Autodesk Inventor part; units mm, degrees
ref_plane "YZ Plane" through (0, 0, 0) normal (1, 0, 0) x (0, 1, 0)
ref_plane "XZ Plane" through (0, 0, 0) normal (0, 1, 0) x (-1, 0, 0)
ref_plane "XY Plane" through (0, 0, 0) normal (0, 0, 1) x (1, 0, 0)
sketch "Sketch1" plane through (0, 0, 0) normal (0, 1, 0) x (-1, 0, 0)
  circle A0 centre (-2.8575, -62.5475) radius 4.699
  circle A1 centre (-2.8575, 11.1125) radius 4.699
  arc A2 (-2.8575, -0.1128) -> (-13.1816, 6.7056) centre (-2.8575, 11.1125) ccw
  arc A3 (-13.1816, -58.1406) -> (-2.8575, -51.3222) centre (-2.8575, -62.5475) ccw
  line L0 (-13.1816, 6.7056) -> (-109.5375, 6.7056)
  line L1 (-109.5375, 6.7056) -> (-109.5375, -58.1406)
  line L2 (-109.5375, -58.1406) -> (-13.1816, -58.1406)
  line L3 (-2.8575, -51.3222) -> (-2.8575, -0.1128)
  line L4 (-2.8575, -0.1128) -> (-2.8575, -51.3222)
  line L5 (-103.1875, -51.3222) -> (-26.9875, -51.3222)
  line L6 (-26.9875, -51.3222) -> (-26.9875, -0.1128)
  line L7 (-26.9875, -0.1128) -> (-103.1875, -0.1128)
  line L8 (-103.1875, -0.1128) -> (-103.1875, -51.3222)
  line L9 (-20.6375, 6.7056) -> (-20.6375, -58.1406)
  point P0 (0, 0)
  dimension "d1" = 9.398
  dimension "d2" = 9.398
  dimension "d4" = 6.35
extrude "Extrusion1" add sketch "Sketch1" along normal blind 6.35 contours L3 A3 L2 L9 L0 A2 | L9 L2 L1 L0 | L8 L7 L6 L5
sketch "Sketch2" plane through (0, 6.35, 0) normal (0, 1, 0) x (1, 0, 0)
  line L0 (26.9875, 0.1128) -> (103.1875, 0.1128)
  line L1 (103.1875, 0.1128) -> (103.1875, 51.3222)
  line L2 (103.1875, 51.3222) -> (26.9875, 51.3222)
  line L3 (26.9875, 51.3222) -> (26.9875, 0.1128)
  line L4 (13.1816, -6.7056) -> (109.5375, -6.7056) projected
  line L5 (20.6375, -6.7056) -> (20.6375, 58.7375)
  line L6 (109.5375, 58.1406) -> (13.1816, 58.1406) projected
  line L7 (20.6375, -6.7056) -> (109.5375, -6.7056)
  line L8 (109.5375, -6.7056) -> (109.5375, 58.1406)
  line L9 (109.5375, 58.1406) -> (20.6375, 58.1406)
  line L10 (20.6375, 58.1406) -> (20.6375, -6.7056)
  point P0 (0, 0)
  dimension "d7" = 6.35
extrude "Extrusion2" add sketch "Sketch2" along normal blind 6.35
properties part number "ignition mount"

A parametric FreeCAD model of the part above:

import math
import FreeCAD as App
import Part
import Sketcher
Q = App.Units.Quantity

doc = App.newDocument("Part")
body = doc.addObject("PartDesign::Body", "Body")

# Sketch on XZ plane
sketch1 = body.newObject("Sketcher::SketchObject", "Sketch")
sketch1.AttachmentSupport = (doc.getObject("XZ_Plane"), [""])
sketch1.MapMode = "FlatFace"
sketch1.addGeometry(Part.LineSegment(App.Vector(2.9, -51.3, 0), App.Vector(2.9, -0.1, 0)), False)
sketch1.addGeometry(Part.ArcOfCircle(Part.Circle(App.Vector(2.9, 11.1, 0), App.Vector(0, 0, 1), 11.2), math.radians(-23), math.radians(270)), False)
sketch1.addGeometry(Part.LineSegment(App.Vector(13.2, 6.7, 0), App.Vector(109.5, 6.7, 0)), False)
sketch1.addGeometry(Part.LineSegment(App.Vector(109.5, 6.7, 0), App.Vector(109.5, -58.1, 0)), False)
sketch1.addGeometry(Part.LineSegment(App.Vector(109.5, -58.1, 0), App.Vector(13.2, -58.1, 0)), False)
sketch1.addGeometry(Part.ArcOfCircle(Part.Circle(App.Vector(2.9, -62.5, 0), App.Vector(0, 0, 1), 11.2), math.radians(90), math.radians(383)), False)
sketch1.addGeometry(Part.Circle(App.Vector(2.9, -62.5, 0), App.Vector(0, 0, 1), 4.7), False)
sketch1.addGeometry(Part.Circle(App.Vector(2.9, 11.1, 0), App.Vector(0, 0, 1), 4.7), False)
sketch1.addConstraint(Sketcher.Constraint("Coincident", 0, 2, 1, 2))
sketch1.addConstraint(Sketcher.Constraint("Coincident", 1, 1, 2, 1))
sketch1.addConstraint(Sketcher.Constraint("Coincident", 2, 2, 3, 1))
sketch1.addConstraint(Sketcher.Constraint("Coincident", 3, 2, 4, 1))
sketch1.addConstraint(Sketcher.Constraint("Coincident", 4, 2, 5, 2))
sketch1.addConstraint(Sketcher.Constraint("Coincident", 5, 1, 0, 1))
sketch1.addConstraint(Sketcher.Constraint("Vertical", 0))
sketch1.addConstraint(Sketcher.Constraint("Horizontal", 2))
sketch1.addConstraint(Sketcher.Constraint("Vertical", 3))
sketch1.addConstraint(Sketcher.Constraint("Horizontal", 4))
sketch1.addConstraint(Sketcher.Constraint("Coincident", 6, 3, 5, 3))
sketch1.addConstraint(Sketcher.Constraint("Coincident", 7, 3, 1, 3))
sketch1.addConstraint(Sketcher.Constraint("Equal", 1, 5))
sketch1.addConstraint(Sketcher.Constraint("Equal", 6, 7))
sketch1.addConstraint(Sketcher.Constraint("Vertical", 1, 3, 5, 3))
sketch1.addConstraint(Sketcher.Constraint("Vertical", 7, 3, 0, 2))
sketch1.addConstraint(Sketcher.Constraint("Vertical", 1, 1, 4, 2))
sketch1.addConstraint(Sketcher.Constraint("Diameter", 6, Q("0.37 in")))
sketch1.addConstraint(Sketcher.Constraint("DistanceY", 5, 3, 1, 3, Q("2.9 in")))
sketch1.addConstraint(Sketcher.Constraint("DistanceX", 1, 3, 2, 2, Q("4.2 in")))
sketch1.addConstraint(Sketcher.Constraint("DistanceY", 3, 2, 3, 1, Q("2.553 in")))
sketch1.addConstraint(Sketcher.Constraint("Radius", 1, Q("11.2253 mm")))
sketch1.addConstraint(Sketcher.Constraint("DistanceY", -1, 1, 1, 3, Q("0.4375 in")))
sketch1.addConstraint(Sketcher.Constraint("DistanceX", -1, 1, 2, 2, Q("4.3125 in")))
pad1 = body.newObject("PartDesign::Pad", "Pad")
pad1.Profile = sketch1
pad1.Length = Q("0.25 in")
pad1.Reversed = True

# Sketch on XZ plane
sketch2 = body.newObject("Sketcher::SketchObject", "Sketch001")
sketch2.AttachmentSupport = (doc.getObject("XZ_Plane"), [""])
sketch2.MapMode = "FlatFace"
sketch2.AttachmentOffset = App.Placement(App.Vector(0, 0, -0.25 * 25.4), App.Rotation())
sketch2.addGeometry(Part.LineSegment(App.Vector(21, -58, 0), App.Vector(21, 7, 0)), False)
sketch2.addGeometry(Part.LineSegment(App.Vector(21, 7, 0), App.Vector(110, 7, 0)), False)
sketch2.addGeometry(Part.LineSegment(App.Vector(110, 7, 0), App.Vector(110, -58, 0)), False)
sketch2.addGeometry(Part.LineSegment(App.Vector(110, -58, 0), App.Vector(21, -58, 0)), False)
sketch2.addGeometry(Part.LineSegment(App.Vector(103, 0, 0), App.Vector(27, 0, 0)), False)
sketch2.addGeometry(Part.LineSegment(App.Vector(27, 0, 0), App.Vector(27, -51, 0)), False)
sketch2.addGeometry(Part.LineSegment(App.Vector(27, -51, 0), App.Vector(103, -51, 0)), False)
sketch2.addGeometry(Part.LineSegment(App.Vector(103, -51, 0), App.Vector(103, 0, 0)), False)
sketch2.addConstraint(Sketcher.Constraint("Coincident", 0, 2, 1, 1))
sketch2.addConstraint(Sketcher.Constraint("Coincident", 1, 2, 2, 1))
sketch2.addConstraint(Sketcher.Constraint("Coincident", 2, 2, 3, 1))
sketch2.addConstraint(Sketcher.Constraint("Coincident", 3, 2, 0, 1))
sketch2.addConstraint(Sketcher.Constraint("Coincident", 4, 2, 5, 1))
sketch2.addConstraint(Sketcher.Constraint("Coincident", 5, 2, 6, 1))
sketch2.addConstraint(Sketcher.Constraint("Coincident", 6, 2, 7, 1))
sketch2.addConstraint(Sketcher.Constraint("Coincident", 7, 2, 4, 1))
sketch2.addConstraint(Sketcher.Constraint("Vertical", 0))
sketch2.addConstraint(Sketcher.Constraint("Horizontal", 1))
sketch2.addConstraint(Sketcher.Constraint("Vertical", 2))
sketch2.addConstraint(Sketcher.Constraint("Horizontal", 3))
sketch2.addConstraint(Sketcher.Constraint("Horizontal", 4))
sketch2.addConstraint(Sketcher.Constraint("Vertical", 5))
sketch2.addConstraint(Sketcher.Constraint("Horizontal", 6))
sketch2.addConstraint(Sketcher.Constraint("Vertical", 7))
sketch2.addConstraint(Sketcher.Constraint("DistanceX", 4, 2, 4, 1, Q("3 in")))
sketch2.addConstraint(Sketcher.Constraint("DistanceX", 0, 2, 4, 2, Q("0.25 in")))
sketch2.addConstraint(Sketcher.Constraint("DistanceX", 6, 2, 2, 2, Q("0.25 in")))
sketch2.addConstraint(Sketcher.Constraint("DistanceY", 0, 1, 0, 2, Q("2.553 in")))
sketch2.addConstraint(Sketcher.Constraint("DistanceX", -1, 1, 0, 2, Q("0.8125 in")))
sketch2.addConstraint(Sketcher.Constraint("DistanceY", -1, 1, 0, 2, Q("0.264 in")))
sketch2.addConstraint(Sketcher.Constraint("DistanceY", 5, 2, 5, 1, Q("51.2094 mm")))
sketch2.addConstraint(Sketcher.Constraint("DistanceY", 4, 2, -1, 1, Q("0.1128 mm")))
pad2 = body.newObject("PartDesign::Pad", "Pad001")
pad2.Profile = sketch2
pad2.Length = Q("0.25 in")
pad2.Reversed = True

doc.recompute()
